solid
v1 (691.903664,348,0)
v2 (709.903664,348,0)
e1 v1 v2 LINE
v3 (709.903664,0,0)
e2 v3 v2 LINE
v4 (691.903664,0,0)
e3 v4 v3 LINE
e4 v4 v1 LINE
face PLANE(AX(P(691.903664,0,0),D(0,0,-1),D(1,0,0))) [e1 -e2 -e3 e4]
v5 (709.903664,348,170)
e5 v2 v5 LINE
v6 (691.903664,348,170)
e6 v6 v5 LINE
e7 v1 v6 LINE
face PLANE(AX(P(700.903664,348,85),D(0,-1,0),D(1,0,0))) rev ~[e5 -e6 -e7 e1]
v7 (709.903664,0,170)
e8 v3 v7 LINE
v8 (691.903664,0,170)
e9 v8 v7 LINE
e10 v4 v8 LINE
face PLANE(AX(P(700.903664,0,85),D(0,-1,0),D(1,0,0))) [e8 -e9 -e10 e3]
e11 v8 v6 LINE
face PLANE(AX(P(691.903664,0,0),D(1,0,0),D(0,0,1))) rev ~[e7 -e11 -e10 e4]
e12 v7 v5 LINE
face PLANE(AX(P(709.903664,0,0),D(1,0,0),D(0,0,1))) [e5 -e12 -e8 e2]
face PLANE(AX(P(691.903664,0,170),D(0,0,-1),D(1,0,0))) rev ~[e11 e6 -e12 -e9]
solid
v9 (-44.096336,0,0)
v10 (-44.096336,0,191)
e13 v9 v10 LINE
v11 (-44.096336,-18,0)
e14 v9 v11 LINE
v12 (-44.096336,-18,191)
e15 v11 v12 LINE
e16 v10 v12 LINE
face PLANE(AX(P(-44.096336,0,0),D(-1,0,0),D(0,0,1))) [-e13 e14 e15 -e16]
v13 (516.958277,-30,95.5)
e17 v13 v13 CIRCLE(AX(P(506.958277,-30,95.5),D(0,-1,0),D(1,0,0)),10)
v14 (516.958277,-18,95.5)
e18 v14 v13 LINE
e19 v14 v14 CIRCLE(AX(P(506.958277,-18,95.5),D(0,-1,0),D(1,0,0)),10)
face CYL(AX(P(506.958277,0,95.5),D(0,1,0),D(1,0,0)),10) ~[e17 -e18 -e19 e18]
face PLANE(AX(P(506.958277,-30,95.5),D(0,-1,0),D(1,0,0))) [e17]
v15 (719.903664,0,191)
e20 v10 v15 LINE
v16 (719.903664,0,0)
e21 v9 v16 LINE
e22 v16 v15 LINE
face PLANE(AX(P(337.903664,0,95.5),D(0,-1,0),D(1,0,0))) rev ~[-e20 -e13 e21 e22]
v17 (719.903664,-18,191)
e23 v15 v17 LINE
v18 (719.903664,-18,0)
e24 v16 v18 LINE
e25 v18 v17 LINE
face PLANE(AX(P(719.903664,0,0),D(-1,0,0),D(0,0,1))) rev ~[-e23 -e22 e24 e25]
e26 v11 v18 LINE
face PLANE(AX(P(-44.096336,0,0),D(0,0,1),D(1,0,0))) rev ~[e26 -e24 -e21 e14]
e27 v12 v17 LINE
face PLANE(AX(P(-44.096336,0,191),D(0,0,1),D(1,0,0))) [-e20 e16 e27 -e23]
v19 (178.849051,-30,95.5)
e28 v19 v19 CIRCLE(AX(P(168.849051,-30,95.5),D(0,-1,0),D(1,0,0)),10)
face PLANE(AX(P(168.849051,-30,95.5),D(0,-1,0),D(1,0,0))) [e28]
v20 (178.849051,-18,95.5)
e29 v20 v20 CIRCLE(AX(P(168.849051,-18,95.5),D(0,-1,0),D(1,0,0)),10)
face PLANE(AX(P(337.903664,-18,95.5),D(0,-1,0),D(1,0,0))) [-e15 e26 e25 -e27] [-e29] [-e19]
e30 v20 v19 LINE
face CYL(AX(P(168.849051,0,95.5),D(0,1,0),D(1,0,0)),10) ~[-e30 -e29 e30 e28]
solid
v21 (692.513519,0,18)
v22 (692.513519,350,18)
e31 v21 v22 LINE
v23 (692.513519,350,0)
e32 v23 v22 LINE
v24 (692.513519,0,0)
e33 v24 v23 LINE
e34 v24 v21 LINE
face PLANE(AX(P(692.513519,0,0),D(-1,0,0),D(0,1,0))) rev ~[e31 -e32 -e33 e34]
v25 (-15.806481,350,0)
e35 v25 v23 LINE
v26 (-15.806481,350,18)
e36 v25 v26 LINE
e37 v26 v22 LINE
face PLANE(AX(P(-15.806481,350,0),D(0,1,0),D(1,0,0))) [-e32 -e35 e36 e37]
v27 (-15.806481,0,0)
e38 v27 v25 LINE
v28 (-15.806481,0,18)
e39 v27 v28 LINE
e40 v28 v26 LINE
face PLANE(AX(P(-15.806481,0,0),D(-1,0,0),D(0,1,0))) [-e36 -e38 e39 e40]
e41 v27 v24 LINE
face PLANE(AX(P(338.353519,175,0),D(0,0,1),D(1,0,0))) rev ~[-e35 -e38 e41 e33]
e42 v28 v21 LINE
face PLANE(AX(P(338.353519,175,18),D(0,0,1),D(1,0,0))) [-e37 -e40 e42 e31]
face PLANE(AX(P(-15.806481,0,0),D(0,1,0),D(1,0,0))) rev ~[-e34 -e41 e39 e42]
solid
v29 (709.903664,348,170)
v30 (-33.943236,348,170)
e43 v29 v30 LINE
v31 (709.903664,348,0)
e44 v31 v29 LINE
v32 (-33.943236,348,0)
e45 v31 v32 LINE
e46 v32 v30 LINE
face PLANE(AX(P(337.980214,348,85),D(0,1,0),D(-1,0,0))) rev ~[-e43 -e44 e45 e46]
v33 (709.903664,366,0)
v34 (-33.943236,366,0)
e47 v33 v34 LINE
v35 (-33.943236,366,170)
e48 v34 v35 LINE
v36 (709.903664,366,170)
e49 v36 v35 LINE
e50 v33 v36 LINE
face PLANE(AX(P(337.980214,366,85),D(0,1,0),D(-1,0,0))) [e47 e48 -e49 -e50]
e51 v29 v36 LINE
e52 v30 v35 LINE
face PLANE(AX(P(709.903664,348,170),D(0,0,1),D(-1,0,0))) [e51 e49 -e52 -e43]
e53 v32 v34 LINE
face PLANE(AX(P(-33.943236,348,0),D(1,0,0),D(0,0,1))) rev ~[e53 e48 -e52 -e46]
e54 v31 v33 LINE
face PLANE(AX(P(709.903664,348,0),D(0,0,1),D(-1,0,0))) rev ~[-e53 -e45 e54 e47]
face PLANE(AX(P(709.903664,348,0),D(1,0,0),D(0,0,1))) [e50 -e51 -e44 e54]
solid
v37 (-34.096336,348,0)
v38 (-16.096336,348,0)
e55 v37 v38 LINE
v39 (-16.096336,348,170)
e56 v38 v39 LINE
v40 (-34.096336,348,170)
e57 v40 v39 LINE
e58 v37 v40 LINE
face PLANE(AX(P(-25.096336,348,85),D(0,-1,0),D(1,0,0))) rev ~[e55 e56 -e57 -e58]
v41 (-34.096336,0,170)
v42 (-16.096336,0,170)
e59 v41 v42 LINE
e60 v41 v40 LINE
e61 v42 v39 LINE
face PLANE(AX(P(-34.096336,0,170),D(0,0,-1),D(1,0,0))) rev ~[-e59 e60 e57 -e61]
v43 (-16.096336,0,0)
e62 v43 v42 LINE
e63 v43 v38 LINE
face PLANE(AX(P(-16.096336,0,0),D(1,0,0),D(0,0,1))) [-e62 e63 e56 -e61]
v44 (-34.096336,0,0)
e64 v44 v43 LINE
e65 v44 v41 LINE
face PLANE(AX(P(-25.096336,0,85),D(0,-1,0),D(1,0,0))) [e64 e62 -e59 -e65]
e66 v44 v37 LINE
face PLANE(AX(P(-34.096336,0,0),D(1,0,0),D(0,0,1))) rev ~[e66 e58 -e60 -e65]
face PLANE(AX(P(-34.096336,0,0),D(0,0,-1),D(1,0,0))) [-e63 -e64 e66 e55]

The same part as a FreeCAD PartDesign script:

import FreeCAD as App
import Part
import Sketcher
from FreeCAD import Vector


def add_polygon(sketch, points):
    """Adds a closed chain of lines whose ends are joined by coincident constraints."""
    first, n = sketch.GeometryCount, len(points)
    for a, b in zip(points, points[1:] + points[:1]):
        sketch.addGeometry(Part.LineSegment(App.Vector(*a, 0), App.Vector(*b, 0)), False)
    for i in range(n):
        sketch.addConstraint(Sketcher.Constraint("Coincident", first + i, 2, first + (i + 1) % n, 1))

doc = App.newDocument("Part")
body = doc.addObject("PartDesign::Body", "Body")

sketch1 = body.newObject("Sketcher::SketchObject", "Sketch")
sketch1.AttachmentSupport = (doc.getObject("XZ_Plane"), [""])
sketch1.MapMode = "FlatFace"
add_polygon(sketch1, [(-44.096336, 191), (-44.096336, 0), (719.903664, 0), (719.903664, 191)])
sketch1.addGeometry(Part.Circle(Vector(168.849051, 95.5, 0), Vector(0, 0, 1), 10), False)
sketch1.addGeometry(Part.Circle(Vector(506.958277, 95.5, 0), Vector(0, 0, 1), 10), False)
sketch1.addConstraint([
    Sketcher.Constraint("Vertical", 0),
    Sketcher.Constraint("Horizontal", 1),
    Sketcher.Constraint("Vertical", 2),
    Sketcher.Constraint("Horizontal", 3),
    Sketcher.Constraint("Equal", 4, 5),
    Sketcher.Constraint("PointOnObject", 0, 2, -1),
    Sketcher.Constraint("Horizontal", 4, 3, 5, 3),
    Sketcher.Constraint("Diameter", 4, 20.0),
    Sketcher.Constraint("DistanceX", 1, 1, 1, 2, 764.0),
    Sketcher.Constraint("DistanceY", 0, 2, 0, 1, 191.0),
    Sketcher.Constraint("DistanceY", -1, 1, 4, 3, 95.5),
    Sketcher.Constraint("DistanceX", -1, 1, 4, 3, 168.849051),
    Sketcher.Constraint("DistanceX", -1, 1, 5, 3, 506.958277),
    Sketcher.Constraint("DistanceX", 0, 2, -1, 1, 44.096336),
])
pad1 = body.newObject("PartDesign::Pad", "Pad")
pad1.Profile = sketch1
pad1.Length = 18

sketch2 = body.newObject("Sketcher::SketchObject", "Sketch001")
sketch2.AttachmentSupport = (doc.getObject("XZ_Plane"), [""])
sketch2.MapMode = "FlatFace"
sketch2.addGeometry([
    Part.Circle(Vector(168.849051, 95.5, 0), Vector(0, 0, 1), 10),
    Part.Circle(Vector(506.958277, 95.5, 0), Vector(0, 0, 1), 10),
], False)
sketch2.addConstraint([
    Sketcher.Constraint("Equal", 0, 1),
    Sketcher.Constraint("Horizontal", 0, 3, 1, 3),
    Sketcher.Constraint("Diameter", 0, 20.0),
    Sketcher.Constraint("DistanceY", -1, 1, 0, 3, 95.5),
    Sketcher.Constraint("DistanceX", -1, 1, 0, 3, 168.849051),
    Sketcher.Constraint("DistanceX", -1, 1, 1, 3, 506.958277),
])
pad2 = body.newObject("PartDesign::Pad", "Pad001")
pad2.Profile = sketch2
pad2.Length = 30
body2 = doc.addObject("PartDesign::Body", "Body001")
body2.AllowCompound = True

sketch3 = body2.newObject("Sketcher::SketchObject", "Sketch002")
sketch3.AttachmentSupport = (doc.getObject("XZ_Plane001"), [""])
sketch3.MapMode = "FlatFace"
add_polygon(sketch3, [(-34.096336, 170), (-34.096336, 0), (-16.096336, 0), (-16.096336, 170)])
add_polygon(sketch3, [(691.903664, 170), (691.903664, 0), (709.903664, 0), (709.903664, 170)])
sketch3.addConstraint([
    Sketcher.Constraint("Vertical", 0),
    Sketcher.Constraint("Horizontal", 1),
    Sketcher.Constraint("Vertical", 2),
    Sketcher.Constraint("Horizontal", 3),
    Sketcher.Constraint("Vertical", 4),
    Sketcher.Constraint("Horizontal", 5),
    Sketcher.Constraint("Vertical", 6),
    Sketcher.Constraint("Horizontal", 7),
    Sketcher.Constraint("PointOnObject", 0, 2, -1),
    Sketcher.Constraint("PointOnObject", 4, 2, -1),
    Sketcher.Constraint("Horizontal", 3, 2, 6, 2),
    Sketcher.Constraint("Equal", 3, 5),
    Sketcher.Constraint("DistanceX", 1, 1, 1, 2, 18.0),
    Sketcher.Constraint("DistanceY", 0, 2, 0, 1, 170.0),
    Sketcher.Constraint("DistanceX", 1, 2, 4, 2, 708.0),
    Sketcher.Constraint("DistanceX", 0, 2, -1, 1, 34.096336),
])
pad3 = body2.newObject("PartDesign::Pad", "Pad002")
pad3.Profile = sketch3
pad3.Length = 348
pad3.Reversed = True
body3 = doc.addObject("PartDesign::Body", "Body002")

sketch4 = body3.newObject("Sketcher::SketchObject", "Sketch003")
sketch4.AttachmentSupport = (doc.getObject("XZ_Plane002"), [""])
sketch4.MapMode = "FlatFace"
sketch4.AttachmentOffset = App.Placement(Vector(0, 0, -348), App.Rotation())
add_polygon(sketch4, [(709.903664, 170), (709.903664, 0), (-33.943236, 0), (-33.943236, 170)])
sketch4.addConstraint([
    Sketcher.Constraint("Vertical", 0),
    Sketcher.Constraint("Horizontal", 1),
    Sketcher.Constraint("Vertical", 2),
    Sketcher.Constraint("Horizontal", 3),
    Sketcher.Constraint("PointOnObject", 0, 2, -1),
    Sketcher.Constraint("DistanceY", 0, 2, 0, 1, 170.0),
    Sketcher.Constraint("DistanceX", 1, 2, 1, 1, 743.8469),
    Sketcher.Constraint("DistanceX", -1, 1, 0, 2, 709.903664),
])
pad4 = body3.newObject("PartDesign::Pad", "Pad003")
pad4.Profile = sketch4
pad4.Length = 18
pad4.Reversed = True
body4 = doc.addObject("PartDesign::Body", "Body003")

sketch5 = body4.newObject("Sketcher::SketchObject", "Sketch004")
sketch5.AttachmentSupport = (doc.getObject("XY_Plane003"), [""])
sketch5.MapMode = "FlatFace"
add_polygon(sketch5, [(-15.806481, 350), (-15.806481, 0), (692.513519, 0), (692.513519, 350)])
sketch5.addConstraint([
    Sketcher.Constraint("Vertical", 0),
    Sketcher.Constraint("Horizontal", 1),
    Sketcher.Constraint("Vertical", 2),
    Sketcher.Constraint("Horizontal", 3),
    Sketcher.Constraint("PointOnObject", 0, 2, -1),
    Sketcher.Constraint("DistanceY", 0, 2, 0, 1, 350.0),
    Sketcher.Constraint("DistanceX", 1, 1, 1, 2, 708.32),
    Sketcher.Constraint("DistanceX", 0, 2, -1, 1, 15.806481),
])
pad5 = body4.newObject("PartDesign::Pad", "Pad004")
pad5.Profile = sketch5
pad5.Length = 18

doc.recompute()
